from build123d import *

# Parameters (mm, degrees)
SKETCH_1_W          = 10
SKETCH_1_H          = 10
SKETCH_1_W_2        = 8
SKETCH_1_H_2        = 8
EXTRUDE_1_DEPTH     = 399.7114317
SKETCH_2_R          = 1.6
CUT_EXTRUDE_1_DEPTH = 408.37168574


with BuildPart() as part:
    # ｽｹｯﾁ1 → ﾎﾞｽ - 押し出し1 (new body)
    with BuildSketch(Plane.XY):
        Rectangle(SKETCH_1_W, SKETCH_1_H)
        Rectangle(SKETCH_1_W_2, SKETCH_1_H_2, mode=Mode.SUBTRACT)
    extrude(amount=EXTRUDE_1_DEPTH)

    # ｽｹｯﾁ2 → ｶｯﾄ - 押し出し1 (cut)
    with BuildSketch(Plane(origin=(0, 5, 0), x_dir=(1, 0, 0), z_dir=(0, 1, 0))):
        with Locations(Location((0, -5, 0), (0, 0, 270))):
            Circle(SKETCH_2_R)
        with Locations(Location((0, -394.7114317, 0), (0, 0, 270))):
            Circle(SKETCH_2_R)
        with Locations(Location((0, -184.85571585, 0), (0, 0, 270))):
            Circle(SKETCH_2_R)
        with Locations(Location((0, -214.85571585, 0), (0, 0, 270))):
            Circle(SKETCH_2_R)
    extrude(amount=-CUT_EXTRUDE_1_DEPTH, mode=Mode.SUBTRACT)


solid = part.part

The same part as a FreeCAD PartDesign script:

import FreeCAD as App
import Part
import Sketcher

V = App.Vector

doc = App.newDocument("Part")
params = doc.addObject("Spreadsheet::Sheet", "Params")
for row, (alias, value) in enumerate([
    ("sketch1_width", "10 mm"),
    ("sketch1_width2", "8 mm"),
    ("pad1_length", "399.711432 mm"),
    ("sketch2_diameter", "3.2 mm"),
    ("pocket1_length", "408.371686 mm"),
], start=1):
    params.set(f"A{row}", alias)
    params.set(f"B{row}", "=" + value)
    params.setAlias(f"B{row}", alias)

body = doc.addObject("PartDesign::Body", "Body")

# Sketch on XY plane
sketch1 = body.newObject("Sketcher::SketchObject", "Sketch")
sketch1.AttachmentSupport = (doc.getObject("XY_Plane"), [""])
sketch1.MapMode = "FlatFace"
sketch1.addGeometry([
    Part.LineSegment(V(-5, 5, 0), V(-5, -5, 0)),  # 0
    Part.LineSegment(V(-5, -5, 0), V(5, -5, 0)),  # 1
    Part.LineSegment(V(5, -5, 0), V(5, 5, 0)),  # 2
    Part.LineSegment(V(5, 5, 0), V(-5, 5, 0)),  # 3
    Part.LineSegment(V(4, -4, 0), V(-4, -4, 0)),  # 4
    Part.LineSegment(V(-4, -4, 0), V(-4, 4, 0)),  # 5
    Part.LineSegment(V(-4, 4, 0), V(4, 4, 0)),  # 6
    Part.LineSegment(V(4, 4, 0), V(4, -4, 0)),  # 7
], False)
sketch1.addConstraint([
    Sketcher.Constraint("Coincident", 0, 2, 1, 1),
    Sketcher.Constraint("Coincident", 1, 2, 2, 1),
    Sketcher.Constraint("Coincident", 2, 2, 3, 1),
    Sketcher.Constraint("Coincident", 3, 2, 0, 1),
    Sketcher.Constraint("Coincident", 4, 2, 5, 1),
    Sketcher.Constraint("Coincident", 5, 2, 6, 1),
    Sketcher.Constraint("Coincident", 6, 2, 7, 1),
    Sketcher.Constraint("Coincident", 7, 2, 4, 1),
    Sketcher.Constraint("Vertical", 0),
    Sketcher.Constraint("Horizontal", 1),
    Sketcher.Constraint("Vertical", 2),
    Sketcher.Constraint("Horizontal", 3),
    Sketcher.Constraint("Horizontal", 4),
    Sketcher.Constraint("Vertical", 5),
    Sketcher.Constraint("Horizontal", 6),
    Sketcher.Constraint("Vertical", 7),
    Sketcher.Constraint("Symmetric", 0, 2, 2, 2, -1, 1),
    Sketcher.Constraint("Symmetric", 4, 2, 6, 2, -1, 1),
    Sketcher.Constraint("Equal", 3, 0),
    Sketcher.Constraint("Equal", 6, 5),
    Sketcher.Constraint("DistanceX", 1, 1, 1, 2, 10.0),
    Sketcher.Constraint("DistanceX", 4, 2, 4, 1, 8.0),
])
sketch1.setExpression("Constraints[20]", "Params.sketch1_width")
sketch1.setExpression("Constraints[21]", "Params.sketch1_width2")
pad1 = body.newObject("PartDesign::Pad", "Pad")
pad1.Profile = sketch1
pad1.setExpression("Length", "Params.pad1_length")

# Sketch on XZ plane
sketch2 = body.newObject("Sketcher::SketchObject", "Sketch001")
sketch2.AttachmentSupport = (doc.getObject("XZ_Plane"), [""])
sketch2.MapMode = "FlatFace"
sketch2.AttachmentOffset = App.Placement(V(0, 0, -5), App.Rotation())
sketch2.addGeometry([
    Part.Circle(V(0, 5, 0), V(0, 0, 1), 1.6),
    Part.Circle(V(0, 394.7, 0), V(0, 0, 1), 1.6),
    Part.Circle(V(0, 184.9, 0), V(0, 0, 1), 1.6),
    Part.Circle(V(0, 214.9, 0), V(0, 0, 1), 1.6),
], False)
sketch2.addConstraint([
    Sketcher.Constraint("Equal", 0, 1),
    Sketcher.Constraint("Equal", 1, 2),
    Sketcher.Constraint("Equal", 2, 3),
    Sketcher.Constraint("PointOnObject", 0, 3, -2),
    Sketcher.Constraint("PointOnObject", 1, 3, -2),
    Sketcher.Constraint("PointOnObject", 2, 3, -2),
    Sketcher.Constraint("PointOnObject", 3, 3, -2),
    Sketcher.Constraint("Diameter", 0, 3.2),
    Sketcher.Constraint("DistanceY", -1, 1, 0, 3, 5.0),
    Sketcher.Constraint("DistanceY", 2, 3, 3, 3, 30.0),
    Sketcher.Constraint("DistanceY", -1, 1, 1, 3, 394.711432),
    Sketcher.Constraint("DistanceY", -1, 1, 2, 3, 184.855716),
])
sketch2.setExpression("Constraints[7]", "Params.sketch2_diameter")
pocket1 = body.newObject("PartDesign::Pocket", "Pocket")
pocket1.Profile = sketch2
pocket1.setExpression("Length", "Params.pocket1_length")
pocket1.Reversed = True

doc.recompute()
